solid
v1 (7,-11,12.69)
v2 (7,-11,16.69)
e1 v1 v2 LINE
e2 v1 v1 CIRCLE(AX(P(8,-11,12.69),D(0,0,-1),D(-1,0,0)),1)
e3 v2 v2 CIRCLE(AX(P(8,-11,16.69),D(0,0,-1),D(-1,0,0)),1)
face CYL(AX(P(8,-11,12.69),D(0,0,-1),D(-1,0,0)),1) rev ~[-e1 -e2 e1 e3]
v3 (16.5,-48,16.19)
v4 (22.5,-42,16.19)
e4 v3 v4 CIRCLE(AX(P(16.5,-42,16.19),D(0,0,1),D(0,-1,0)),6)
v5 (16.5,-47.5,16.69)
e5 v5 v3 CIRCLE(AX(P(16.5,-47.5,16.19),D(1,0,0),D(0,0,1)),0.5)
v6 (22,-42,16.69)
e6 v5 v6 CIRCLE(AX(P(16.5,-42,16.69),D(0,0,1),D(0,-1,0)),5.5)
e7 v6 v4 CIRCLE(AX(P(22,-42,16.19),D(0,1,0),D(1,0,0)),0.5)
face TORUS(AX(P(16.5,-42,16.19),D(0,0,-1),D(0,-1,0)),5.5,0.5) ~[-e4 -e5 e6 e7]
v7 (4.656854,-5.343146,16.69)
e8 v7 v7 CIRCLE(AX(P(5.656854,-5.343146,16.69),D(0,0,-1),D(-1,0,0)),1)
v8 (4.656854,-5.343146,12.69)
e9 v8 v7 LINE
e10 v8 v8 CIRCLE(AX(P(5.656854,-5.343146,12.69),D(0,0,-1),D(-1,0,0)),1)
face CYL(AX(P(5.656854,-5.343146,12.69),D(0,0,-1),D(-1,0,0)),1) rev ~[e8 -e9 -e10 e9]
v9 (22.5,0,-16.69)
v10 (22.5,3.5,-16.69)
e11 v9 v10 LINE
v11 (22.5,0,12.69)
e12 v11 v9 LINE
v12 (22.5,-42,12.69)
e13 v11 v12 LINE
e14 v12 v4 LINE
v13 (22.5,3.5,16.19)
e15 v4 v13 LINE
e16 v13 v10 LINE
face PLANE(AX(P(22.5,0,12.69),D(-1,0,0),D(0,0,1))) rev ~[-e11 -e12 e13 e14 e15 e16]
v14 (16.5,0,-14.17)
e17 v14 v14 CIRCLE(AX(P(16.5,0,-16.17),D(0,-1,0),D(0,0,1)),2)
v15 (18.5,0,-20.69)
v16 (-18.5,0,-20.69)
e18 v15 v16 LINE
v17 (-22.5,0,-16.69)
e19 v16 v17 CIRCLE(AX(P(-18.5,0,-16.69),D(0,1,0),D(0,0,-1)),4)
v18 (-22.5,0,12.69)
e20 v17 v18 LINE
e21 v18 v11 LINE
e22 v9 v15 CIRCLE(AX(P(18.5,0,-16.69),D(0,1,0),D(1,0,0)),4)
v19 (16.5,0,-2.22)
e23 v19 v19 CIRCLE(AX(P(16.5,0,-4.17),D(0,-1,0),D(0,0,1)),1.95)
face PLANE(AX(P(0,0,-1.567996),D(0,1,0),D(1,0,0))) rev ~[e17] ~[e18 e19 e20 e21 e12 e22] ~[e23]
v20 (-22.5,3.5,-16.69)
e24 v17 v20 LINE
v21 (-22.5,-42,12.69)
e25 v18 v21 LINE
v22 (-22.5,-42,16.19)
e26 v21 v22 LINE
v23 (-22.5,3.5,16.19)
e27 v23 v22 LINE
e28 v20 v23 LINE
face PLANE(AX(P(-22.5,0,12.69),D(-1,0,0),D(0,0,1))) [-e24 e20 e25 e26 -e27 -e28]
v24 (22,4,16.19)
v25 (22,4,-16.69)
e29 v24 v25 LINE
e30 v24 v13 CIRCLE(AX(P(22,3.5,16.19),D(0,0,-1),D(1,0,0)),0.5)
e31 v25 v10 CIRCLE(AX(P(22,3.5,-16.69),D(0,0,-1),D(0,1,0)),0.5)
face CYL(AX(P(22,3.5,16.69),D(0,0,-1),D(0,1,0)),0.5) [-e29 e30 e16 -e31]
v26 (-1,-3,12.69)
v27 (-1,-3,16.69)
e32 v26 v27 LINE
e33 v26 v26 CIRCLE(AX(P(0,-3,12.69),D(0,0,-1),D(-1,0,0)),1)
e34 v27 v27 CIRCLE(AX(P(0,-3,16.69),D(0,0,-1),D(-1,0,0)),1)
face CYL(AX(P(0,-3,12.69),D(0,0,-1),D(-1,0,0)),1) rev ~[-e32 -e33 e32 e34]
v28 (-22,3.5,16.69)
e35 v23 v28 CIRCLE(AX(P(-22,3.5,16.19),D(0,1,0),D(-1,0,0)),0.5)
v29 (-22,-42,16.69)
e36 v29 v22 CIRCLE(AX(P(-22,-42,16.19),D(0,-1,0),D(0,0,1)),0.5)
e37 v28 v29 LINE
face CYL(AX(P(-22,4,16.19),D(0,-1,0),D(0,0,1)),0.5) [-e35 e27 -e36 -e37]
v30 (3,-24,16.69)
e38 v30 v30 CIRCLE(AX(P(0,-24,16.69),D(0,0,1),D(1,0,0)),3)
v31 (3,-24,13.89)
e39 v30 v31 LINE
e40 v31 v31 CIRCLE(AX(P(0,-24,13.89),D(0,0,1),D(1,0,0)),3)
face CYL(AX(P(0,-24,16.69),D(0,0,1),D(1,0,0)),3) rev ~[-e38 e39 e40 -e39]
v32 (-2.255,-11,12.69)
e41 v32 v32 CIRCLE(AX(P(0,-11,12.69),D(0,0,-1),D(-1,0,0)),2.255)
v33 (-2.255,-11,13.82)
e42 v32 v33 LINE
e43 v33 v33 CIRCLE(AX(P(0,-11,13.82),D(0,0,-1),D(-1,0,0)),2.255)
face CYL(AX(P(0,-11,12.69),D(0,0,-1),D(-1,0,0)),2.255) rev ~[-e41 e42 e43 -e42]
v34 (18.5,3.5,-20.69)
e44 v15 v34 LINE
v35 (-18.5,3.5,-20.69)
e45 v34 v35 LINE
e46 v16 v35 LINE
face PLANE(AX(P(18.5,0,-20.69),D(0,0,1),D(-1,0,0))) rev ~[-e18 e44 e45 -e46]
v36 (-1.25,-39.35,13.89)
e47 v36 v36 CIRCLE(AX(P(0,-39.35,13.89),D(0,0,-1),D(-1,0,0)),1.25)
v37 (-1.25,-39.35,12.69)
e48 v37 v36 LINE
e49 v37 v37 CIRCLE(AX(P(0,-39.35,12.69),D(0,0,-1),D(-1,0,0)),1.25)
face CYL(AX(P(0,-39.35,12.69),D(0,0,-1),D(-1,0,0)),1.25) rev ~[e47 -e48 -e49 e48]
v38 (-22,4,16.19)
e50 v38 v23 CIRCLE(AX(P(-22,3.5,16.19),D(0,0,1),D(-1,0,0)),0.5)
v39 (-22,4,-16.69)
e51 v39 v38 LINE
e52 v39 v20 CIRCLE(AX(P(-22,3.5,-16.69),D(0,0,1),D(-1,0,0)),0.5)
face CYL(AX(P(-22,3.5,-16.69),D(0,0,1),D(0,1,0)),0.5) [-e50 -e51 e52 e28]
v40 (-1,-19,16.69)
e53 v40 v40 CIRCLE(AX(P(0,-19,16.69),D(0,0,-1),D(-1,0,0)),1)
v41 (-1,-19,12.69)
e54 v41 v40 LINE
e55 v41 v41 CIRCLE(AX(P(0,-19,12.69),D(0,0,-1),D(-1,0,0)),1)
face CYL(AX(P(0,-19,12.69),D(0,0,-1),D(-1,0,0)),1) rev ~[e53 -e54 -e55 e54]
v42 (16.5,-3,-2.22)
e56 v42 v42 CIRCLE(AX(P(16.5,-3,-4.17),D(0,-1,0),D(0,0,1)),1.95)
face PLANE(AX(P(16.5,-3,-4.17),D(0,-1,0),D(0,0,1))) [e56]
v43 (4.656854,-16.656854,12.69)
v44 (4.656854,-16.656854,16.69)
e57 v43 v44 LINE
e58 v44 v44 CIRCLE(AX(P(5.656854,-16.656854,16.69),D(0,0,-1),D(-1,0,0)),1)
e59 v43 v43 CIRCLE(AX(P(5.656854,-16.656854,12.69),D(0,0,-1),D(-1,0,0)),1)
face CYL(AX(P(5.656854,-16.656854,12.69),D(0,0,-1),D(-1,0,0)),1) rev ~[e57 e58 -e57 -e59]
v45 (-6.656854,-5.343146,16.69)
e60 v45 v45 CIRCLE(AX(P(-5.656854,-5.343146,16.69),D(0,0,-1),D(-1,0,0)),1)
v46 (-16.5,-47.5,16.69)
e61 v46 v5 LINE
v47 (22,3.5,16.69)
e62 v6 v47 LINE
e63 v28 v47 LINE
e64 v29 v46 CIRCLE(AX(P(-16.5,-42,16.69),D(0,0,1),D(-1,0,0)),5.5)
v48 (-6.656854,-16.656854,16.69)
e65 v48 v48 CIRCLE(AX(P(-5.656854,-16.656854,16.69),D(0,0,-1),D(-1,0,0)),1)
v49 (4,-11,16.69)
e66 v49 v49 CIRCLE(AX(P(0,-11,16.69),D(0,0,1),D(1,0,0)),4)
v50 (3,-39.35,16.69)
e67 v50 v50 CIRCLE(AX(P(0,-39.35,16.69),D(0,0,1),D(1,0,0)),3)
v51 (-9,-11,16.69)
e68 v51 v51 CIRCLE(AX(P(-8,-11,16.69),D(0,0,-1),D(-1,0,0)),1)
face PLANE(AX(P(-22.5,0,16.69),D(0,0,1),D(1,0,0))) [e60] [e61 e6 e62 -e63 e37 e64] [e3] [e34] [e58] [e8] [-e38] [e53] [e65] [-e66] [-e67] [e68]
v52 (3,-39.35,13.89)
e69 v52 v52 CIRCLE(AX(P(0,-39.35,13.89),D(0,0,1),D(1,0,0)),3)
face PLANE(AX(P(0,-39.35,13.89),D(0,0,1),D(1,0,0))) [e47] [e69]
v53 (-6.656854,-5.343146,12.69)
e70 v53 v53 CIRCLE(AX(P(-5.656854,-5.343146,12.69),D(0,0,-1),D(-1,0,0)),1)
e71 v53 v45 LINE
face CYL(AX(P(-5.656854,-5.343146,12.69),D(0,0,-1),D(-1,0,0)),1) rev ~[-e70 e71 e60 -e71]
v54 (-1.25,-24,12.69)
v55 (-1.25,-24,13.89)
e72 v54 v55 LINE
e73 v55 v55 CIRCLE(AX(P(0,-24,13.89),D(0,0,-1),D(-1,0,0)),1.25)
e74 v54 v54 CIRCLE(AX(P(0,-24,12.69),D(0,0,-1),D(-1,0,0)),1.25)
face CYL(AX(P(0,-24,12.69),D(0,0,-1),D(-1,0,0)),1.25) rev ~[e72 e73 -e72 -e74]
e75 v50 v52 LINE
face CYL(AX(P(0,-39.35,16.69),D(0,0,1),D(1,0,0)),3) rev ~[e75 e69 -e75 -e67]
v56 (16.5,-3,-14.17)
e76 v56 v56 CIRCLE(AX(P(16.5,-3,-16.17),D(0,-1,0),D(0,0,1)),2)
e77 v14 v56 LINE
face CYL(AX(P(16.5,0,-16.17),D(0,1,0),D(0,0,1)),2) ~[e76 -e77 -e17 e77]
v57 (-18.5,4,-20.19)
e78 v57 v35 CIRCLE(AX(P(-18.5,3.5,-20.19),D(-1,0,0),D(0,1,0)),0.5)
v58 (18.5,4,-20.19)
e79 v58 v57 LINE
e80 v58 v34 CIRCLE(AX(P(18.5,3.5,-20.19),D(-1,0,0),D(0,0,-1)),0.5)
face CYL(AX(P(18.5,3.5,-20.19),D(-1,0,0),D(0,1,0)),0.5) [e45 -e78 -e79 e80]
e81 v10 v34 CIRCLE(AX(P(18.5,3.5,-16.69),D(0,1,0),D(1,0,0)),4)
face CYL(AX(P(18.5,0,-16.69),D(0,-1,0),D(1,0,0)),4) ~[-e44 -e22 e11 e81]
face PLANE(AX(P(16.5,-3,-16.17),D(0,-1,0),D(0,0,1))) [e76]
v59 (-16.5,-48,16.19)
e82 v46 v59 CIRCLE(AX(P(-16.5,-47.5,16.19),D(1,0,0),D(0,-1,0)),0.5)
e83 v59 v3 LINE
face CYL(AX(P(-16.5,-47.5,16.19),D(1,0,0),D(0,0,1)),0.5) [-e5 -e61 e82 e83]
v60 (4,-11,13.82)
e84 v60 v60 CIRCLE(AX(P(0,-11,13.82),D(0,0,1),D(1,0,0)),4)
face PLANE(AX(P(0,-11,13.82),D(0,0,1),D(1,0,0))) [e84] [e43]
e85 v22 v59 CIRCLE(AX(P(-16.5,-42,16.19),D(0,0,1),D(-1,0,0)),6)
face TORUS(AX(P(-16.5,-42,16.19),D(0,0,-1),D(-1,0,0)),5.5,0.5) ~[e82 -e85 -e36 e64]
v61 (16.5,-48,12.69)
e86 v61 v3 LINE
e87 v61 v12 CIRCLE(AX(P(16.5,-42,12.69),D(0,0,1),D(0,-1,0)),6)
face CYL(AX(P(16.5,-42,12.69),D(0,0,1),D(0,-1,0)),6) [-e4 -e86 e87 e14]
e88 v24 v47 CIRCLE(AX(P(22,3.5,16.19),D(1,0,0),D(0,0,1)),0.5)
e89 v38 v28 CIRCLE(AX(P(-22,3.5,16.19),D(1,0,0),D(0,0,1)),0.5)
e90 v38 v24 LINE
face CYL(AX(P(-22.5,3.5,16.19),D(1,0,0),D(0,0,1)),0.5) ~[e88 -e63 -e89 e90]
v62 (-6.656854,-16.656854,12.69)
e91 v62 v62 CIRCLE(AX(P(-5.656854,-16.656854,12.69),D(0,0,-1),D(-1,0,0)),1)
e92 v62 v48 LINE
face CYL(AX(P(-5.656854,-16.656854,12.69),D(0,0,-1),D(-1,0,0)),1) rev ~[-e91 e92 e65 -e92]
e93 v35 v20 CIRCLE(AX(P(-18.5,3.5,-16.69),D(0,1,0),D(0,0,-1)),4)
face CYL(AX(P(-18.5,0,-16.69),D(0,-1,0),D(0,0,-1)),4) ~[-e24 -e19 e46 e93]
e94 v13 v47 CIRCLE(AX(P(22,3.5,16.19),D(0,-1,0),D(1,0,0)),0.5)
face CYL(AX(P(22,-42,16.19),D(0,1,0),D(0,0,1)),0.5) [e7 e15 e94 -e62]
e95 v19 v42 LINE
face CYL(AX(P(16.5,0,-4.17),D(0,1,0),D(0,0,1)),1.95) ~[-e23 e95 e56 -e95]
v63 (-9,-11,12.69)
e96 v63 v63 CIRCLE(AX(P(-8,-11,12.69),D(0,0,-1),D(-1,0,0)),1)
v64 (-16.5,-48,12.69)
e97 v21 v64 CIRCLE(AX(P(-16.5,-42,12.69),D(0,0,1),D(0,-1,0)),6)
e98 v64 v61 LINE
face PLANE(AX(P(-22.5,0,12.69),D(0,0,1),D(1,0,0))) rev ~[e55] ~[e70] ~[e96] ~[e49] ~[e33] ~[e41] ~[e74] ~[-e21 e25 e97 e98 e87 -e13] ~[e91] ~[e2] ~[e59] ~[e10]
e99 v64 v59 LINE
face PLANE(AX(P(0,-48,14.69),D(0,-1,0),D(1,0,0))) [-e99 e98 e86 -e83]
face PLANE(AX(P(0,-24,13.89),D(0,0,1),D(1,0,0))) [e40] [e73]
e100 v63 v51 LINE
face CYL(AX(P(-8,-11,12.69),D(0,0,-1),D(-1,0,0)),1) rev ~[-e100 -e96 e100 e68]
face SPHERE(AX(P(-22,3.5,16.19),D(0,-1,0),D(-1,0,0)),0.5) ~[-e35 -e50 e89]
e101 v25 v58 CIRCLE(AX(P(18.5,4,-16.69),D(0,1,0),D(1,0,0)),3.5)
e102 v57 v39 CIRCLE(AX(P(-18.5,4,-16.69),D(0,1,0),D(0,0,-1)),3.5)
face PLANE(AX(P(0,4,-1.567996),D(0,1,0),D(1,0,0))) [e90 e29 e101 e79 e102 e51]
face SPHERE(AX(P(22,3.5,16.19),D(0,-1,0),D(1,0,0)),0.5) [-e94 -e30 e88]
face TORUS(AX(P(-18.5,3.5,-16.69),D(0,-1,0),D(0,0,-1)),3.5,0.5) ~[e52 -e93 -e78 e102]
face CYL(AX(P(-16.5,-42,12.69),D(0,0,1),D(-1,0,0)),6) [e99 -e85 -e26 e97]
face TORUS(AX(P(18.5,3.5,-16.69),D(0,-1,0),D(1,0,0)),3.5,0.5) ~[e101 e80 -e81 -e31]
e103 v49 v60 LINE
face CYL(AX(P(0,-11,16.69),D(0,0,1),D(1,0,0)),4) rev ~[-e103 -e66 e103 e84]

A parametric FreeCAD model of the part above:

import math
import FreeCAD as App
import Part
import Sketcher
Q = App.Units.Quantity


def edges_at(feature, points):
    """Names of the edges that pass closest to the given points."""
    edges = feature.Shape.Edges
    near = lambda p: min(range(len(edges)), key=lambda i: edges[i].distToShape(Part.Vertex(*p))[0])
    return sorted({f"Edge{near(p) + 1}" for p in points})

doc = App.newDocument("Part")
body = doc.addObject("PartDesign::Body", "Body")

sketch1 = body.newObject("Sketcher::SketchObject", "Sketch")
sketch1.AttachmentSupport = (doc.getObject("XZ_Plane"), [""])
sketch1.MapMode = "FlatFace"
sketch1.addGeometry(Part.LineSegment(App.Vector(-22.5, 16.7, 0), App.Vector(22.5, 16.7, 0)), False)
sketch1.addGeometry(Part.LineSegment(App.Vector(22.5, 16.7, 0), App.Vector(22.5, -16.7, 0)), False)
sketch1.addGeometry(Part.ArcOfCircle(Part.Circle(App.Vector(18.5, -16.7, 0), App.Vector(0, 0, 1), 4), math.radians(-90), math.radians(0)), False)
sketch1.addGeometry(Part.LineSegment(App.Vector(18.5, -20.7, 0), App.Vector(-18.5, -20.7, 0)), False)
sketch1.addGeometry(Part.ArcOfCircle(Part.Circle(App.Vector(-18.5, -16.7, 0), App.Vector(0, 0, 1), 4), math.radians(180), math.radians(270)), False)
sketch1.addGeometry(Part.LineSegment(App.Vector(-22.5, -16.7, 0), App.Vector(-22.5, 16.7, 0)), False)
sketch1.addConstraint(Sketcher.Constraint("Coincident", 0, 2, 1, 1))
sketch1.addConstraint(Sketcher.Constraint("Tangent", 1, 2, 2, 2))
sketch1.addConstraint(Sketcher.Constraint("Tangent", 2, 1, 3, 1))
sketch1.addConstraint(Sketcher.Constraint("Tangent", 3, 2, 4, 2))
sketch1.addConstraint(Sketcher.Constraint("Tangent", 4, 1, 5, 1))
sketch1.addConstraint(Sketcher.Constraint("Coincident", 5, 2, 0, 1))
sketch1.addConstraint(Sketcher.Constraint("Horizontal", 0))
sketch1.addConstraint(Sketcher.Constraint("Vertical", 1))
sketch1.addConstraint(Sketcher.Constraint("Horizontal", 3))
sketch1.addConstraint(Sketcher.Constraint("Vertical", 5))
sketch1.addConstraint(Sketcher.Constraint("Equal", 2, 4))
sketch1.addConstraint(Sketcher.Constraint("Symmetric", 0, 2, 4, 1, -1, 1))
sketch1.addConstraint(Sketcher.Constraint("Radius", 2, Q("4 mm")))
sketch1.addConstraint(Sketcher.Constraint("DistanceX", 0, 1, 0, 2, Q("45 mm")))
sketch1.addConstraint(Sketcher.Constraint("DistanceY", 1, 2, 1, 1, Q("33.38 mm")))
pad1 = body.newObject("PartDesign::Pad", "Pad")
pad1.Profile = sketch1
pad1.Length = 4
pad1.Reversed = True

sketch2 = body.newObject("Sketcher::SketchObject", "Sketch001")
sketch2.AttachmentSupport = (doc.getObject("XZ_Plane"), [""])
sketch2.MapMode = "FlatFace"
sketch2.addGeometry(Part.LineSegment(App.Vector(-22.5, 16.7, 0), App.Vector(-22.5, 12.7, 0)), False)
sketch2.addGeometry(Part.LineSegment(App.Vector(-22.5, 12.7, 0), App.Vector(22.5, 12.7, 0)), False)
sketch2.addGeometry(Part.LineSegment(App.Vector(22.5, 12.7, 0), App.Vector(22.5, 16.7, 0)), False)
sketch2.addGeometry(Part.LineSegment(App.Vector(22.5, 16.7, 0), App.Vector(-22.5, 16.7, 0)), False)
sketch2.addConstraint(Sketcher.Constraint("Coincident", 0, 2, 1, 1))
sketch2.addConstraint(Sketcher.Constraint("Coincident", 1, 2, 2, 1))
sketch2.addConstraint(Sketcher.Constraint("Coincident", 2, 2, 3, 1))
sketch2.addConstraint(Sketcher.Constraint("Coincident", 3, 2, 0, 1))
sketch2.addConstraint(Sketcher.Constraint("Vertical", 0))
sketch2.addConstraint(Sketcher.Constraint("Horizontal", 1))
sketch2.addConstraint(Sketcher.Constraint("Vertical", 2))
sketch2.addConstraint(Sketcher.Constraint("Horizontal", 3))
sketch2.addConstraint(Sketcher.Constraint("DistanceX", 1, 1, 1, 2, Q("45 mm")))
sketch2.addConstraint(Sketcher.Constraint("DistanceY", 0, 2, 0, 1, Q("4 mm")))
sketch2.addConstraint(Sketcher.Constraint("DistanceX", 0, 2, -1, 1, Q("22.5 mm")))
sketch2.addConstraint(Sketcher.Constraint("DistanceY", -1, 1, 0, 2, Q("12.69 mm")))
pad2 = body.newObject("PartDesign::Pad", "Pad001")
pad2.Profile = sketch2
pad2.Length = 48

sketch3 = body.newObject("Sketcher::SketchObject", "Sketch002")
sketch3.AttachmentSupport = (doc.getObject("XY_Plane"), [""])
sketch3.MapMode = "FlatFace"
sketch3.AttachmentOffset = App.Placement(App.Vector(0, 0, 12.69), App.Rotation())
sketch3.addGeometry(Part.Circle(App.Vector(0, -39.4, 0), App.Vector(0, 0, 1), 1.2), False)
sketch3.addGeometry(Part.Circle(App.Vector(0, -24, 0), App.Vector(0, 0, 1), 1.2), False)
sketch3.addConstraint(Sketcher.Constraint("Equal", 0, 1))
sketch3.addConstraint(Sketcher.Constraint("PointOnObject", 0, 3, -2))
sketch3.addConstraint(Sketcher.Constraint("PointOnObject", 1, 3, -2))
sketch3.addConstraint(Sketcher.Constraint("Diameter", 0, Q("2.5 mm")))
sketch3.addConstraint(Sketcher.Constraint("DistanceY", 1, 3, -1, 1, Q("24 mm")))
sketch3.addConstraint(Sketcher.Constraint("DistanceY", 0, 3, -1, 1, Q("39.35 mm")))
pocket1 = body.newObject("PartDesign::Pocket", "Pocket")
pocket1.Profile = sketch3
pocket1.Type = "ThroughAll"
pocket1.Reversed = True
doc.recompute()

fillet = body.newObject("PartDesign::Fillet", "Fillet")
fillet.Base = (pocket1, edges_at(pocket1, [(-22.5, -48, 14.69), (22.5, -48, 14.69)]))
fillet.Radius = 6
doc.recompute()

fillet2 = body.newObject("PartDesign::Fillet", "Fillet001")
fillet2.Base = (fillet, edges_at(fillet, [
    (22.5, -19, 16.69),
    (-22.5, -19, 16.69),
    (22.5, 4, 0),
    (21.328, 4, -19.518),
    (0, 4, -20.69),
    (-21.328, 4, -19.518),
    (0, -48, 16.69),
    (-20.743, -46.243, 16.69),
    (20.743, -46.243, 16.69),
    (-22.5, 4, 0),
    (0, 4, 16.69),
]))
fillet2.Radius = 0.5

sketch4 = body.newObject("Sketcher::SketchObject", "Sketch003")
sketch4.AttachmentSupport = (doc.getObject("XY_Plane"), [""])
sketch4.MapMode = "FlatFace"
sketch4.AttachmentOffset = App.Placement(App.Vector(0, 0, 12.69), App.Rotation())
sketch4.addGeometry(Part.Circle(App.Vector(0, -11, 0), App.Vector(0, 0, 1), 2.3), False)
sketch4.addConstraint(Sketcher.Constraint("PointOnObject", 0, 3, -2))
sketch4.addConstraint(Sketcher.Constraint("Diameter", 0, Q("4.51 mm")))
sketch4.addConstraint(Sketcher.Constraint("DistanceY", 0, 3, -1, 1, Q("11 mm")))
pocket2 = body.newObject("PartDesign::Pocket", "Pocket001")
pocket2.Profile = sketch4
pocket2.Type = "ThroughAll"
pocket2.Reversed = True

sketch5 = body.newObject("Sketcher::SketchObject", "Sketch004")
sketch5.AttachmentSupport = (doc.getObject("XY_Plane"), [""])
sketch5.MapMode = "FlatFace"
sketch5.AttachmentOffset = App.Placement(App.Vector(0, 0, 12.69), App.Rotation())
sketch5.addGeometry(Part.Circle(App.Vector(0, -19, 0), App.Vector(0, 0, 1), 1), False)
sketch5.addGeometry(Part.Circle(App.Vector(5.7, -16.7, 0), App.Vector(0, 0, 1), 1), False)
sketch5.addGeometry(Part.Circle(App.Vector(8, -11, 0), App.Vector(0, 0, 1), 1), False)
sketch5.addGeometry(Part.Circle(App.Vector(5.7, -5.3, 0), App.Vector(0, 0, 1), 1), False)
sketch5.addGeometry(Part.Circle(App.Vector(0, -3, 0), App.Vector(0, 0, 1), 1), False)
sketch5.addGeometry(Part.Circle(App.Vector(-5.7, -5.3, 0), App.Vector(0, 0, 1), 1), False)
sketch5.addGeometry(Part.Circle(App.Vector(-8, -11, 0), App.Vector(0, 0, 1), 1), False)
sketch5.addGeometry(Part.Circle(App.Vector(-5.7, -16.7, 0), App.Vector(0, 0, 1), 1), False)
sketch5.addConstraint(Sketcher.Constraint("Equal", 0, 1))
sketch5.addConstraint(Sketcher.Constraint("Equal", 1, 2))
sketch5.addConstraint(Sketcher.Constraint("Equal", 2, 3))
sketch5.addConstraint(Sketcher.Constraint("Equal", 3, 4))
sketch5.addConstraint(Sketcher.Constraint("Equal", 4, 5))
sketch5.addConstraint(Sketcher.Constraint("Equal", 5, 6))
sketch5.addConstraint(Sketcher.Constraint("Equal", 6, 7))
sketch5.addConstraint(Sketcher.Constraint("Symmetric", 3, 3, 5, 3, -2))
sketch5.addConstraint(Sketcher.Constraint("Symmetric", 2, 3, 6, 3, -2))
sketch5.addConstraint(Sketcher.Constraint("Symmetric", 1, 3, 7, 3, -2))
sketch5.addConstraint(Sketcher.Constraint("PointOnObject", 0, 3, -2))
sketch5.addConstraint(Sketcher.Constraint("PointOnObject", 4, 3, -2))
sketch5.addConstraint(Sketcher.Constraint("Vertical", 1, 3, 3, 3))
sketch5.addConstraint(Sketcher.Constraint("Diameter", 0, Q("2 mm")))
sketch5.addConstraint(Sketcher.Constraint("DistanceY", 0, 3, -1, 1, Q("19 mm")))
sketch5.addConstraint(Sketcher.Constraint("DistanceX", -1, 1, 2, 3, Q("8 mm")))
sketch5.addConstraint(Sketcher.Constraint("DistanceY", 2, 3, -1, 1, Q("11 mm")))
sketch5.addConstraint(Sketcher.Constraint("DistanceY", 4, 3, -1, 1, Q("3 mm")))
sketch5.addConstraint(Sketcher.Constraint("DistanceY", 1, 3, 3, 3, Q("11.313708 mm")))
sketch5.addConstraint(Sketcher.Constraint("DistanceX", 5, 3, 3, 3, Q("11.313708 mm")))
sketch5.addConstraint(Sketcher.Constraint("DistanceY", 1, 3, -1, 1, Q("16.656854 mm")))
pocket3 = body.newObject("PartDesign::Pocket", "Pocket002")
pocket3.Profile = sketch5
pocket3.Type = "ThroughAll"
pocket3.Reversed = True

sketch6 = body.newObject("Sketcher::SketchObject", "Sketch005")
sketch6.AttachmentSupport = (doc.getObject("XY_Plane"), [""])
sketch6.MapMode = "FlatFace"
sketch6.AttachmentOffset = App.Placement(App.Vector(0, 0, 16.69), App.Rotation())
sketch6.addGeometry(Part.Circle(App.Vector(0, -11, 0), App.Vector(0, 0, 1), 4), False)
sketch6.addConstraint(Sketcher.Constraint("PointOnObject", 0, 3, -2))
sketch6.addConstraint(Sketcher.Constraint("Diameter", 0, Q("8 mm")))
sketch6.addConstraint(Sketcher.Constraint("DistanceY", 0, 3, -1, 1, Q("11 mm")))
pocket4 = body.newObject("PartDesign::Pocket", "Pocket003")
pocket4.Profile = sketch6
pocket4.Length = 2.87

sketch7 = body.newObject("Sketcher::SketchObject", "Sketch006")
sketch7.AttachmentSupport = (doc.getObject("XY_Plane"), [""])
sketch7.MapMode = "FlatFace"
sketch7.AttachmentOffset = App.Placement(App.Vector(0, 0, 16.69), App.Rotation())
sketch7.addGeometry(Part.Circle(App.Vector(0, -24, 0), App.Vector(0, 0, 1), 3), False)
sketch7.addGeometry(Part.Circle(App.Vector(0, -39.4, 0), App.Vector(0, 0, 1), 3), False)
sketch7.addConstraint(Sketcher.Constraint("Equal", 0, 1))
sketch7.addConstraint(Sketcher.Constraint("PointOnObject", 0, 3, -2))
sketch7.addConstraint(Sketcher.Constraint("PointOnObject", 1, 3, -2))
sketch7.addConstraint(Sketcher.Constraint("Diameter", 0, Q("6 mm")))
sketch7.addConstraint(Sketcher.Constraint("DistanceY", 0, 3, -1, 1, Q("24 mm")))
sketch7.addConstraint(Sketcher.Constraint("DistanceY", 1, 3, -1, 1, Q("39.35 mm")))
pocket5 = body.newObject("PartDesign::Pocket", "Pocket004")
pocket5.Profile = sketch7
pocket5.Length = 2.8

sketch8 = body.newObject("Sketcher::SketchObject", "Sketch007")
sketch8.AttachmentSupport = (doc.getObject("XZ_Plane"), [""])
sketch8.MapMode = "FlatFace"
sketch8.addGeometry(Part.Circle(App.Vector(16.5, -16.2, 0), App.Vector(0, 0, 1), 2), False)
sketch8.addGeometry(Part.Circle(App.Vector(16.5, -4.2, 0), App.Vector(0, 0, 1), 1.9), False)
sketch8.addConstraint(Sketcher.Constraint("Vertical", 0, 3, 1, 3))
sketch8.addConstraint(Sketcher.Constraint("Diameter", 0, Q("4 mm")))
sketch8.addConstraint(Sketcher.Constraint("Diameter", 1, Q("3.9 mm")))
sketch8.addConstraint(Sketcher.Constraint("DistanceY", 0, 3, 1, 3, Q("12 mm")))
sketch8.addConstraint(Sketcher.Constraint("DistanceX", -1, 1, 0, 3, Q("16.5 mm")))
sketch8.addConstraint(Sketcher.Constraint("DistanceY", 0, 3, -1, 1, Q("16.17 mm")))
pad3 = body.newObject("PartDesign::Pad", "Pad002")
pad3.Profile = sketch8
pad3.Length = 3

doc.recompute()
